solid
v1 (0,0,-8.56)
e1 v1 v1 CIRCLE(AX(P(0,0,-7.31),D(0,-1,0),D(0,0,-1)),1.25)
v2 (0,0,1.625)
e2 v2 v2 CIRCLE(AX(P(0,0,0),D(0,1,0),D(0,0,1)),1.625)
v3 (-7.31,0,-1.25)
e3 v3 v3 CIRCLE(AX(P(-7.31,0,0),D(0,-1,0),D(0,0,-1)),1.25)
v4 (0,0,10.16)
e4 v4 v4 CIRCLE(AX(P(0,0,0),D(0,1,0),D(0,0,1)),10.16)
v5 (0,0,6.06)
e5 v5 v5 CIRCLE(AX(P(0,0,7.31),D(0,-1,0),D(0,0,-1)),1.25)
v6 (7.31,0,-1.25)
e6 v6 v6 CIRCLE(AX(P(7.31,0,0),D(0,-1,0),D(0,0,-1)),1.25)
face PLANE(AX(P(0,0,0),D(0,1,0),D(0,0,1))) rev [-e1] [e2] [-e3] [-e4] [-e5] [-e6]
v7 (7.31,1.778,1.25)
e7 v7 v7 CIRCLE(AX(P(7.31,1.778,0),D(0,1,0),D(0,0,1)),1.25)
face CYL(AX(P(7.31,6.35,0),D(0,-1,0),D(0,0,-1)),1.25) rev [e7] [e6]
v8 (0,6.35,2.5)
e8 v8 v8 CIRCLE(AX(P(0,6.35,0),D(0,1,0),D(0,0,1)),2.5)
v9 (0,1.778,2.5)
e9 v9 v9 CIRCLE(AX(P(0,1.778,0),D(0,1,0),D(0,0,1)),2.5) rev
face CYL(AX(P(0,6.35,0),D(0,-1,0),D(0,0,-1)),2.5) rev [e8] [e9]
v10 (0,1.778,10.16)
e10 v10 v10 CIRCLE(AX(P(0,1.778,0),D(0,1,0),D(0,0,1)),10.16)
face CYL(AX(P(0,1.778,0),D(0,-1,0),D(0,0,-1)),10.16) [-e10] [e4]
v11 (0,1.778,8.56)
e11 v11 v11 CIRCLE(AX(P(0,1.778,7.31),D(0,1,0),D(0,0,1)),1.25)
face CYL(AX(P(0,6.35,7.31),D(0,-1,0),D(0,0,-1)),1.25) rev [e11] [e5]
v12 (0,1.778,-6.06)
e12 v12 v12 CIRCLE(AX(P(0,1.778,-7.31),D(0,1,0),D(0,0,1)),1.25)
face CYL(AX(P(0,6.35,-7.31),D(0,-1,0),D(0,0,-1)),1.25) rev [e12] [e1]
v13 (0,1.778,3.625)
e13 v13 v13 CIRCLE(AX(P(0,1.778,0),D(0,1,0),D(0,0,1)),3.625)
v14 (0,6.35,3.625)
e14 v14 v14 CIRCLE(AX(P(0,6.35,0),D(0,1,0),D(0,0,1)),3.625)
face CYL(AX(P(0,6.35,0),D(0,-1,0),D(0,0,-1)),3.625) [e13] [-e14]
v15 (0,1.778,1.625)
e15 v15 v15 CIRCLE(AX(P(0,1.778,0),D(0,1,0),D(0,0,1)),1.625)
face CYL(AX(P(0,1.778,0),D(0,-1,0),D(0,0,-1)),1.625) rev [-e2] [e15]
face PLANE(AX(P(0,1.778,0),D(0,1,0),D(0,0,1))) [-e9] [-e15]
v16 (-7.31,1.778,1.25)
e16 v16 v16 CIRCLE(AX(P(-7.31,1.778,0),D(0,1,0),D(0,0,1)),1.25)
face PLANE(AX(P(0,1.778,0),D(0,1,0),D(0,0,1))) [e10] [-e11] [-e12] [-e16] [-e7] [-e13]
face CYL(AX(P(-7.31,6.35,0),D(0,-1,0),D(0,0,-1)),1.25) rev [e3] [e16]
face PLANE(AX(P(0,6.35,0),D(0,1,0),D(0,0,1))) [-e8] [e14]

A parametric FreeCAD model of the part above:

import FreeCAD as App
import Part
import Sketcher
Q = App.Units.Quantity

doc = App.newDocument("Part")
body = doc.addObject("PartDesign::Body", "Body")

# Sketch on XZ plane
sketch1 = doc.addObject("Sketcher::SketchObject", "Sketch")
body.addObject(sketch1)
sketch1.AttachmentSupport = (doc.XZ_Plane, [""])
sketch1.MapMode = "FlatFace"
sketch1.addGeometry([
    Part.Circle(App.Vector(0, 0, 0), App.Vector(0, 0, 1), 10.16),
    Part.Circle(App.Vector(0, 0, 0), App.Vector(0, 0, 1), 1.625),
], False)
sketch1.addConstraint([
    Sketcher.Constraint("Coincident", 0, 3, -1, 1),
    Sketcher.Constraint("Coincident", 1, 3, -1, 1),
    Sketcher.Constraint("Diameter", 0, Q("0.8 in")),
    Sketcher.Constraint("Diameter", 1, Q("3.25 mm")),
])
pad1 = doc.addObject("PartDesign::Pad", "Pad")
body.addObject(pad1)
pad1.Profile = sketch1
pad1.Length = Q("0.07 in")
pad1.Reversed = True

# Sketch on XZ plane
sketch2 = doc.addObject("Sketcher::SketchObject", "Sketch001")
body.addObject(sketch2)
sketch2.AttachmentSupport = (doc.XZ_Plane, [""])
sketch2.MapMode = "FlatFace"
sketch2.AttachmentOffset = App.Placement(App.Vector(0, 0, -0.07 * 25.4), App.Rotation())
sketch2.addGeometry([
    Part.Circle(App.Vector(0, 0, 0), App.Vector(0, 0, 1), 3.625),
    Part.Circle(App.Vector(0, 0, 0), App.Vector(0, 0, 1), 2.5),
], False)
sketch2.addConstraint([
    Sketcher.Constraint("Coincident", 0, 3, -1, 1),
    Sketcher.Constraint("Coincident", 1, 3, -1, 1),
    Sketcher.Constraint("Diameter", 0, Q("7.25 mm")),
    Sketcher.Constraint("Diameter", 1, Q("5 mm")),
])
pad2 = doc.addObject("PartDesign::Pad", "Pad001")
body.addObject(pad2)
pad2.Profile = sketch2
pad2.Length = Q("0.18 in")
pad2.Reversed = True

# Sketch on XZ plane
sketch3 = doc.addObject("Sketcher::SketchObject", "Sketch002")
body.addObject(sketch3)
sketch3.AttachmentSupport = (doc.XZ_Plane, [""])
sketch3.MapMode = "FlatFace"
sketch3.addGeometry([
    Part.Circle(App.Vector(0, 7.31, 0), App.Vector(0, 0, 1), 1.25),
    Part.Circle(App.Vector(7.31, 0, 0), App.Vector(0, 0, 1), 1.25),
    Part.Circle(App.Vector(-7.31, 0, 0), App.Vector(0, 0, 1), 1.25),
    Part.Circle(App.Vector(0, -7.31, 0), App.Vector(0, 0, 1), 1.25),
], False)
sketch3.addConstraint([
    Sketcher.Constraint("Equal", 0, 1),
    Sketcher.Constraint("Equal", 1, 2),
    Sketcher.Constraint("Equal", 2, 3),
    Sketcher.Constraint("Symmetric", 1, 3, 2, 3, -1, 1),
    Sketcher.Constraint("Symmetric", 0, 3, 3, 3, -1, 1),
    Sketcher.Constraint("PointOnObject", 0, 3, -2),
    Sketcher.Constraint("PointOnObject", 1, 3, -1),
    Sketcher.Constraint("Diameter", 0, Q("2.5 mm")),
    Sketcher.Constraint("DistanceY", -1, 1, 0, 3, Q("7.31 mm")),
    Sketcher.Constraint("DistanceX", -1, 1, 1, 3, Q("7.31 mm")),
])
pocket1 = doc.addObject("PartDesign::Pocket", "Pocket")
body.addObject(pocket1)
pocket1.Profile = sketch3
pocket1.Type = "ThroughAll"

doc.recompute()
